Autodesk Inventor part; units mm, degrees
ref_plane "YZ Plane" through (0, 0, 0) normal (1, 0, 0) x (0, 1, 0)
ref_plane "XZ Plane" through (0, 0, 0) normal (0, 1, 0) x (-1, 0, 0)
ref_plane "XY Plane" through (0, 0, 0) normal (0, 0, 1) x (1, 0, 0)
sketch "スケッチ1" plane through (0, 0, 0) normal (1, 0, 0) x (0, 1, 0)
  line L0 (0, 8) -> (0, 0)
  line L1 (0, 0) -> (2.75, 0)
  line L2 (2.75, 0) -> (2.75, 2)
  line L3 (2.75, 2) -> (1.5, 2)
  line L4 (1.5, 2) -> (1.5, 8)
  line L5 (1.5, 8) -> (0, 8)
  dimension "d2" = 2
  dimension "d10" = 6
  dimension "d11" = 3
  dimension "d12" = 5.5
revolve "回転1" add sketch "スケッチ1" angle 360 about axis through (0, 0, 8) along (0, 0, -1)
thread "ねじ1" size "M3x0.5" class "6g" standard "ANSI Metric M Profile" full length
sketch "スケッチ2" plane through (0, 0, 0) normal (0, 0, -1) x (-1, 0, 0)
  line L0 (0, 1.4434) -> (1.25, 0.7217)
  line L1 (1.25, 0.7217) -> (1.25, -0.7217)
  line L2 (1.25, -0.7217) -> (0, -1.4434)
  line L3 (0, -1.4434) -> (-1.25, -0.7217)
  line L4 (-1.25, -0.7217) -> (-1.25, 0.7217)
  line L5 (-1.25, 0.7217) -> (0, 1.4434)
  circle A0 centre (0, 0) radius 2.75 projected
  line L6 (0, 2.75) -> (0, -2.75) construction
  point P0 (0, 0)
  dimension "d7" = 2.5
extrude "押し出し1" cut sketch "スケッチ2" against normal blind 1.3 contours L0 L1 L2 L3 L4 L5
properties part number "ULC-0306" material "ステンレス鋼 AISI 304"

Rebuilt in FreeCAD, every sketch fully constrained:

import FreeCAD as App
import Part
import Sketcher
Q = App.Units.Quantity


def add_polygon(sketch, points):
    """Adds a closed chain of lines whose ends are joined by coincident constraints."""
    first, n = sketch.GeometryCount, len(points)
    for a, b in zip(points, points[1:] + points[:1]):
        sketch.addGeometry(Part.LineSegment(App.Vector(*a, 0), App.Vector(*b, 0)), False)
    for i in range(n):
        sketch.addConstraint(Sketcher.Constraint("Coincident", first + i, 2, first + (i + 1) % n, 1))

doc = App.newDocument("Part")
body = doc.addObject("PartDesign::Body", "Body")

sketch1 = doc.addObject("Sketcher::SketchObject", "Sketch")
body.addObject(sketch1)
sketch1.AttachmentSupport = (doc.YZ_Plane, [""])
sketch1.MapMode = "FlatFace"
add_polygon(sketch1, [(1.5, 8), (0, 8), (0, 0), (2.75, 0), (2.75, 2), (1.5, 2)])
sketch1.addConstraint(Sketcher.Constraint("Horizontal", 0))
sketch1.addConstraint(Sketcher.Constraint("Vertical", 1))
sketch1.addConstraint(Sketcher.Constraint("Horizontal", 2))
sketch1.addConstraint(Sketcher.Constraint("Vertical", 3))
sketch1.addConstraint(Sketcher.Constraint("Horizontal", 4))
sketch1.addConstraint(Sketcher.Constraint("Vertical", 5))
sketch1.addConstraint(Sketcher.Constraint("Coincident", 1, 2, -1, 1))
sketch1.addConstraint(Sketcher.Constraint("DistanceY", 3, 1, 3, 2, 2.0))
sketch1.addConstraint(Sketcher.Constraint("DistanceY", 5, 1, 5, 2, 6.0))
sketch1.addConstraint(Sketcher.Constraint("DistanceX", 0, 2, 0, 1, 1.5))
sketch1.addConstraint(Sketcher.Constraint("DistanceX", 2, 1, 2, 2, 2.75))
revolution = doc.addObject("PartDesign::Revolution", "Revolution")
body.addObject(revolution)
revolution.Profile = sketch1
revolution.ReferenceAxis = (sketch1, ["V_Axis"])
revolution.Angle = 360

sketch2 = doc.addObject("Sketcher::SketchObject", "Sketch001")
body.addObject(sketch2)
sketch2.AttachmentSupport = (doc.XY_Plane, [""])
sketch2.MapMode = "FlatFace"
add_polygon(sketch2, [(-1.25, 0.7217), (0, 1.4434), (1.25, 0.7217), (1.25, -0.7217), (0, -1.4434), (-1.25, -0.7217)])
sketch2.addConstraint(Sketcher.Constraint("Vertical", 2))
sketch2.addConstraint(Sketcher.Constraint("Vertical", 5))
sketch2.addConstraint(Sketcher.Constraint("Symmetric", 0, 2, 3, 2, -1, 1))
sketch2.addConstraint(Sketcher.Constraint("Symmetric", 1, 2, 4, 2, -1, 1))
sketch2.addConstraint(Sketcher.Constraint("PointOnObject", 0, 2, -2))
sketch2.addConstraint(Sketcher.Constraint("Parallel", 0, 3))
sketch2.addConstraint(Sketcher.Constraint("Horizontal", 2, 2, 4, 2))
sketch2.addConstraint(Sketcher.Constraint("DistanceX", 4, 2, 2, 2, 2.5))
sketch2.addConstraint(Sketcher.Constraint("Angle", 0, Q("30.0004 deg")))
sketch2.addConstraint(Sketcher.Constraint("DistanceY", 2, 2, 2, 1, 1.4434))
pocket1 = doc.addObject("PartDesign::Pocket", "Pocket")
body.addObject(pocket1)
pocket1.Profile = sketch2
pocket1.Length = 1.3
pocket1.Reversed = True

doc.recompute()
